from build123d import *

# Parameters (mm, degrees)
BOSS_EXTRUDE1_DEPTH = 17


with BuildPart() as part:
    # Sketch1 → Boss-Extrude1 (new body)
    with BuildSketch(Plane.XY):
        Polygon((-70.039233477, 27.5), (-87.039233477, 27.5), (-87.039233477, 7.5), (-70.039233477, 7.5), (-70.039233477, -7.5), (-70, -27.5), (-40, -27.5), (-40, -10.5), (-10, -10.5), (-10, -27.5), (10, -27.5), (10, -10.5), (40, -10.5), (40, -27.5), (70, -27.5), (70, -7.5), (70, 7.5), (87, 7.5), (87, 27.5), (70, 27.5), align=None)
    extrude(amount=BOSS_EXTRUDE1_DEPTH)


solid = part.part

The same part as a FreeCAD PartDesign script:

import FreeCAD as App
import Part
import Sketcher

V = App.Vector


def add_polygon(sketch, points):
    """Adds a closed chain of lines whose ends are joined by coincident constraints."""
    first, n = sketch.GeometryCount, len(points)
    for a, b in zip(points, points[1:] + points[:1]):
        sketch.addGeometry(Part.LineSegment(App.Vector(*a, 0), App.Vector(*b, 0)), False)
    for i in range(n):
        sketch.addConstraint(Sketcher.Constraint("Coincident", first + i, 2, first + (i + 1) % n, 1))

doc = App.newDocument("Part")
body = doc.addObject("PartDesign::Body", "Body")

# Sketch on XY plane
sketch1 = doc.addObject("Sketcher::SketchObject", "Sketch")
body.addObject(sketch1)
sketch1.AttachmentSupport = (doc.XY_Plane, [""])
sketch1.MapMode = "FlatFace"
add_polygon(sketch1, [(-87, 28), (-87, 8), (-70, 8), (-70, -8), (-70, -28), (-40, -28), (-40, -10), (-10, -10), (-10, -28), (10, -28), (10, -10), (40, -10), (40, -28), (70, -28), (70, 8), (87, 8), (87, 28)])  # lines 0-16
sketch1.addConstraint(Sketcher.Constraint("Vertical", 0))
sketch1.addConstraint(Sketcher.Constraint("Horizontal", 1))
sketch1.addConstraint(Sketcher.Constraint("Vertical", 2))
sketch1.addConstraint(Sketcher.Constraint("Horizontal", 4))
sketch1.addConstraint(Sketcher.Constraint("Vertical", 5))
sketch1.addConstraint(Sketcher.Constraint("Horizontal", 6))
sketch1.addConstraint(Sketcher.Constraint("Vertical", 7))
sketch1.addConstraint(Sketcher.Constraint("Horizontal", 8))
sketch1.addConstraint(Sketcher.Constraint("Vertical", 9))
sketch1.addConstraint(Sketcher.Constraint("Horizontal", 10))
sketch1.addConstraint(Sketcher.Constraint("Vertical", 11))
sketch1.addConstraint(Sketcher.Constraint("Horizontal", 12))
sketch1.addConstraint(Sketcher.Constraint("Vertical", 13))
sketch1.addConstraint(Sketcher.Constraint("Horizontal", 14))
sketch1.addConstraint(Sketcher.Constraint("Vertical", 15))
sketch1.addConstraint(Sketcher.Constraint("Horizontal", 16))
sketch1.addConstraint(Sketcher.Constraint("Symmetric", 6, 2, 9, 2, -2))
sketch1.addConstraint(Sketcher.Constraint("Symmetric", 4, 2, 11, 2, -2))
sketch1.addConstraint(Sketcher.Constraint("Horizontal", 4, 2, 7, 2))
sketch1.addConstraint(Sketcher.Constraint("Horizontal", 1, 2, 13, 2))
sketch1.addConstraint(Sketcher.Constraint("Equal", 4, 6))
sketch1.addConstraint(Sketcher.Constraint("Equal", 10, 12))
sketch1.addConstraint(Sketcher.Constraint("Equal", 1, 14))
sketch1.addConstraint(Sketcher.Constraint("Equal", 8, 0))
sketch1.addConstraint(Sketcher.Constraint("Equal", 14, 5))
sketch1.addConstraint(Sketcher.Constraint("DistanceX", 1, 1, 1, 2, 17.0))
sketch1.addConstraint(Sketcher.Constraint("DistanceX", 4, 1, 4, 2, 30.0))
sketch1.addConstraint(Sketcher.Constraint("DistanceX", 8, 1, 8, 2, 20.0))
sketch1.addConstraint(Sketcher.Constraint("DistanceY", 2, 2, 2, 1, 15.0))
sketch1.addConstraint(Sketcher.Constraint("DistanceY", 13, 1, 13, 2, 35.0))
sketch1.addConstraint(Sketcher.Constraint("DistanceY", -1, 1, 0, 2, 7.5))
sketch1.addConstraint(Sketcher.Constraint("DistanceX", 16, 2, 16, 1, 174.039233))
pad1 = doc.addObject("PartDesign::Pad", "Pad")
body.addObject(pad1)
pad1.Profile = sketch1
pad1.Length = 17

doc.recompute()
